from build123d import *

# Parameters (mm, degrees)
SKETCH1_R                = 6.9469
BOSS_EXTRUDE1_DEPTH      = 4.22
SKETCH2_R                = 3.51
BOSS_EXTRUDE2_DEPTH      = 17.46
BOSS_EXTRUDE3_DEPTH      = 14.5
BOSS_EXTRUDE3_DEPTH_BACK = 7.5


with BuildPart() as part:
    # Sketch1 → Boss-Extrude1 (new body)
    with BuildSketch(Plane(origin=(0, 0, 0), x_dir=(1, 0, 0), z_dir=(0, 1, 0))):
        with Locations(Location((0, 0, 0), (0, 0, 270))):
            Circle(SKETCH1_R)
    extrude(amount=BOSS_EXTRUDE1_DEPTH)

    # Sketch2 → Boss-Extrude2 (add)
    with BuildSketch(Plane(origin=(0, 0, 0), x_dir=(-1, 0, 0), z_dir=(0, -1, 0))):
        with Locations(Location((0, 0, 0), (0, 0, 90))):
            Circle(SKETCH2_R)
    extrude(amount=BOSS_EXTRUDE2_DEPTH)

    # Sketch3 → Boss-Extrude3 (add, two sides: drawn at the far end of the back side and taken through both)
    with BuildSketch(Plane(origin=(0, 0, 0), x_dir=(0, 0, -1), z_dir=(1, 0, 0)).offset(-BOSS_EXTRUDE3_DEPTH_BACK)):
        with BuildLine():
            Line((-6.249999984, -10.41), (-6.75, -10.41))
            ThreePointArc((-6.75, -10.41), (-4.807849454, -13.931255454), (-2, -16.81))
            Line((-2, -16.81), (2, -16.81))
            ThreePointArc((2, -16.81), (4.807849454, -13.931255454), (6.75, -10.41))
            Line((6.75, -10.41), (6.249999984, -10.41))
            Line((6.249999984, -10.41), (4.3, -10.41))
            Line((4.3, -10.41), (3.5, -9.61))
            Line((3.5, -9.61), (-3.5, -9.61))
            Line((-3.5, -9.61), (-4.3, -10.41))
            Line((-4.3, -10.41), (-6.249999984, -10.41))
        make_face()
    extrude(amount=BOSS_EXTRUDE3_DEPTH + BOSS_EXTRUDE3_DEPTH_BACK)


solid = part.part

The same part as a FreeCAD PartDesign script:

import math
import FreeCAD as App
import Part
import Sketcher

V = App.Vector
Q = App.Units.Quantity

doc = App.newDocument("Part")
body = doc.addObject("PartDesign::Body", "Body")

# Sketch on XZ plane
sketch1 = body.newObject("Sketcher::SketchObject", "Sketch")
sketch1.AttachmentSupport = (doc.getObject("XZ_Plane"), [""])
sketch1.MapMode = "FlatFace"
sketch1.addGeometry(Part.Circle(V(0, 0, 0), V(0, 0, 1), 7), False)
sketch1.addConstraint([
    Sketcher.Constraint("Coincident", 0, 3, -1, 1),
    Sketcher.Constraint("Diameter", 0, Q("13.8938 mm")),
])
pad1 = body.newObject("PartDesign::Pad", "Pad")
pad1.Profile = sketch1
pad1.Length = 4.22
pad1.Reversed = True

# Sketch on XZ plane
sketch2 = body.newObject("Sketcher::SketchObject", "Sketch001")
sketch2.AttachmentSupport = (doc.getObject("XZ_Plane"), [""])
sketch2.MapMode = "FlatFace"
sketch2.addGeometry(Part.Circle(V(0, 0, 0), V(0, 0, 1), 3.5), False)
sketch2.addConstraint([
    Sketcher.Constraint("Coincident", 0, 3, -1, 1),
    Sketcher.Constraint("Diameter", 0, Q("7.02 mm")),
])
pad2 = body.newObject("PartDesign::Pad", "Pad001")
pad2.Profile = sketch2
pad2.Length = 17.46

# Sketch on YZ plane
sketch3 = body.newObject("Sketcher::SketchObject", "Sketch002")
sketch3.AttachmentSupport = (doc.getObject("YZ_Plane"), [""])
sketch3.MapMode = "FlatFace"
sketch3.addGeometry([
    Part.ArcOfCircle(Part.Circle(V(-5, -7.2, 0), V(0, 0, 1), 15), math.radians(111), math.radians(142)),  # 0
    Part.LineSegment(V(-16.8, 2, 0), V(-16.8, -2, 0)),  # 1
    Part.ArcOfCircle(Part.Circle(V(-5, 7.2, 0), V(0, 0, 1), 15), math.radians(-142), math.radians(-111)),  # 2
    Part.LineSegment(V(-10.4, -6.8, 0), V(-10.4, -4.3, 0)),  # 3
    Part.LineSegment(V(-10.4, -4.3, 0), V(-9.6, -3.5, 0)),  # 4
    Part.LineSegment(V(-9.6, -3.5, 0), V(-9.6, 3.5, 0)),  # 5
    Part.LineSegment(V(-9.6, 3.5, 0), V(-10.4, 4.3, 0)),  # 6
    Part.LineSegment(V(-10.4, 4.3, 0), V(-10.4, 6.8, 0)),  # 7
], False)
sketch3.addConstraint([
    Sketcher.Constraint("Coincident", 0, 2, 1, 1),
    Sketcher.Constraint("Coincident", 1, 2, 2, 1),
    Sketcher.Constraint("Coincident", 2, 2, 3, 1),
    Sketcher.Constraint("Coincident", 3, 2, 4, 1),
    Sketcher.Constraint("Coincident", 4, 2, 5, 1),
    Sketcher.Constraint("Coincident", 5, 2, 6, 1),
    Sketcher.Constraint("Coincident", 6, 2, 7, 1),
    Sketcher.Constraint("Coincident", 7, 2, 0, 1),
    Sketcher.Constraint("Vertical", 1),
    Sketcher.Constraint("Vertical", 3),
    Sketcher.Constraint("Vertical", 5),
    Sketcher.Constraint("Vertical", 7),
    Sketcher.Constraint("Equal", 0, 2),
    Sketcher.Constraint("Symmetric", 0, 3, 2, 3, -1),
    Sketcher.Constraint("Symmetric", 3, 2, 6, 2, -1),
    Sketcher.Constraint("Perpendicular", 4, 6),
    Sketcher.Constraint("Equal", 4, 6),
    Sketcher.Constraint("Radius", 0, Q("15 mm")),
    Sketcher.Constraint("DistanceY", 1, 2, 1, 1, Q("4 mm")),
    Sketcher.Constraint("DistanceY", 5, 1, 5, 2, Q("7 mm")),
    Sketcher.Constraint("DistanceY", 3, 1, 3, 2, Q("2.45 mm")),
    Sketcher.Constraint("DistanceY", 3, 2, -1, 1, Q("4.3 mm")),
    Sketcher.Constraint("DistanceX", 1, 2, 2, 2, Q("6.4 mm")),
    Sketcher.Constraint("DistanceX", 0, 2, -1, 1, Q("16.81 mm")),
])
pad3 = body.newObject("PartDesign::Pad", "Pad002")
pad3.Profile = sketch3
pad3.Type = "TwoLengths"
pad3.Length = 14.5
pad3.Length2 = 7.5

doc.recompute()
